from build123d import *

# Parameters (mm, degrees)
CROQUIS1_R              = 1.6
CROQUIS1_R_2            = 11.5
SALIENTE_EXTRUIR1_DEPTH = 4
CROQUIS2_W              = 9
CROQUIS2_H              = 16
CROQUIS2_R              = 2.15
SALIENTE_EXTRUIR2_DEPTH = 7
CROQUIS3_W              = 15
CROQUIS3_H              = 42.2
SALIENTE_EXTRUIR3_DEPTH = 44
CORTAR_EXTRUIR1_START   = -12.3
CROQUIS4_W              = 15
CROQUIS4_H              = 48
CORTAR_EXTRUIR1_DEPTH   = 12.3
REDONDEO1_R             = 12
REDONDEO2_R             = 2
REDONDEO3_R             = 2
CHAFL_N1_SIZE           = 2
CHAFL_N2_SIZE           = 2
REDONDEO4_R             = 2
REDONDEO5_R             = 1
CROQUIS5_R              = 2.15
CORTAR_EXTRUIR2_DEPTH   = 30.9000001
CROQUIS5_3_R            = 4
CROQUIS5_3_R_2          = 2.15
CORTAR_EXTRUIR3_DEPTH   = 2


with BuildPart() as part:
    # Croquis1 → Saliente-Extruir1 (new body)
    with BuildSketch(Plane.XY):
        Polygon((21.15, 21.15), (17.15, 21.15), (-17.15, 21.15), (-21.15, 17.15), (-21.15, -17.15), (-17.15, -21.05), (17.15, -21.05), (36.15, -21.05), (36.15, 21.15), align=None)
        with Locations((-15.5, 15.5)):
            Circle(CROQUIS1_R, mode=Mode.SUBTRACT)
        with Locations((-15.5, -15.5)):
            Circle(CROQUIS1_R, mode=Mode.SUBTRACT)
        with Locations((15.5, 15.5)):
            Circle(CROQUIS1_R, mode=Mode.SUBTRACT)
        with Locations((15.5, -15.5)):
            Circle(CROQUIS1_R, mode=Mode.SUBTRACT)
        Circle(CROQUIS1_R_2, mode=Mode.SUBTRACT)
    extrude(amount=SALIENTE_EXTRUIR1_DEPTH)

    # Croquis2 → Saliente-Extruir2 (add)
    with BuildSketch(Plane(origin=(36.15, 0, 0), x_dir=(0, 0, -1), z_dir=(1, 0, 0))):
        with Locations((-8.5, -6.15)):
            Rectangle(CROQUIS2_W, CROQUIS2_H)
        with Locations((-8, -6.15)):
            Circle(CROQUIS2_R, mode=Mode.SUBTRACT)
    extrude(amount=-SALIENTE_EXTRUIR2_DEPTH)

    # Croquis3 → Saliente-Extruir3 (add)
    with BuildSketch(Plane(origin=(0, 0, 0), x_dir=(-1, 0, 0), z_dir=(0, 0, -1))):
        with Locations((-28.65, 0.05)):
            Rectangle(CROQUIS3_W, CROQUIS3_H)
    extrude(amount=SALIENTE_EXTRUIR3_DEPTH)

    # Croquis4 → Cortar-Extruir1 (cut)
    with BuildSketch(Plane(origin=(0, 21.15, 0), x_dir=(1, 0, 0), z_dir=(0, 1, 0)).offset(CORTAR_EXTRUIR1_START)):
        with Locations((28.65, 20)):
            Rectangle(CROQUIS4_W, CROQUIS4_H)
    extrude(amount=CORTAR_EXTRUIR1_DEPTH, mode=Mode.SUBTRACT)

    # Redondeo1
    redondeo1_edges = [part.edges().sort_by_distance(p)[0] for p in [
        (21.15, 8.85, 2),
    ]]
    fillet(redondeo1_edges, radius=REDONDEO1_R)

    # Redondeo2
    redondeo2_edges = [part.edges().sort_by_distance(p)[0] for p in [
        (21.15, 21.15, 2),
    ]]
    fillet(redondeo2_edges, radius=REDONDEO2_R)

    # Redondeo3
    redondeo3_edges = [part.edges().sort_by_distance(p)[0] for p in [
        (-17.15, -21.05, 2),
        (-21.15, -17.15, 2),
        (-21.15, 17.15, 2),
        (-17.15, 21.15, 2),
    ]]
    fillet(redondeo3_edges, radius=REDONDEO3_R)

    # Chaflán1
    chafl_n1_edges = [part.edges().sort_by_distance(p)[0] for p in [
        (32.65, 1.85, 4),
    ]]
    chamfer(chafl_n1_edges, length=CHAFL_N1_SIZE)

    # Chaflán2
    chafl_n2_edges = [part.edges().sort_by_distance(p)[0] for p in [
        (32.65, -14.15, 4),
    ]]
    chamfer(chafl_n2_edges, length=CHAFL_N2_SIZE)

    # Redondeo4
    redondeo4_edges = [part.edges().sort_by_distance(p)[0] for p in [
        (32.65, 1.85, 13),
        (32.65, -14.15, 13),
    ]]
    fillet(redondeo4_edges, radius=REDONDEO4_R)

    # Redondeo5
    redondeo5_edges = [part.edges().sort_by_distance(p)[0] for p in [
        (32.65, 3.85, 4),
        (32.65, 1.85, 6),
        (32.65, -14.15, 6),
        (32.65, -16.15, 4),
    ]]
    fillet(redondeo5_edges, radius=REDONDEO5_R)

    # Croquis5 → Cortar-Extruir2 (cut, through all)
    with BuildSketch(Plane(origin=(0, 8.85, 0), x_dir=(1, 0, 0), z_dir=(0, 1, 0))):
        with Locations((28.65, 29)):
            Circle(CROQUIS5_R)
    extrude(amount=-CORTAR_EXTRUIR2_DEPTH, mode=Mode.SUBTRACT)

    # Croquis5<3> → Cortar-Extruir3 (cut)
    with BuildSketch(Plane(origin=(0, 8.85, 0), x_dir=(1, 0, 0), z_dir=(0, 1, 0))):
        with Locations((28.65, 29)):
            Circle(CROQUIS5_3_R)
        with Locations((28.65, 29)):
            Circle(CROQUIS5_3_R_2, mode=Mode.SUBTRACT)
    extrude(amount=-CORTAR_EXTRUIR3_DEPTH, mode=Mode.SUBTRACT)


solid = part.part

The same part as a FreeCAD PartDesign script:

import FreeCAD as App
import Part
import Sketcher
Q = App.Units.Quantity


def edges_at(feature, points):
    """Names of the edges that pass closest to the given points."""
    edges = feature.Shape.Edges
    near = lambda p: min(range(len(edges)), key=lambda i: edges[i].distToShape(Part.Vertex(*p))[0])
    return sorted({f"Edge{near(p) + 1}" for p in points})

doc = App.newDocument("Part")
params = doc.addObject("Spreadsheet::Sheet", "Params")
for row, (alias, value) in enumerate([
    ("sketch1_diameter", "23 mm"),
    ("sketch1_diameter2", "3.2 mm"),
    ("sketch1_width", "53.3 mm"),
    ("sketch1_height", "34.3 mm"),
    ("sketch1_height2", "42.2 mm"),
    ("pad1_length", "4 mm"),
    ("sketch2_diameter", "4.3 mm"),
    ("sketch2_width", "16 mm"),
    ("sketch2_height", "9 mm"),
    ("pad2_length", "7 mm"),
    ("sketch3_width", "15 mm"),
    ("sketch3_height", "42.2 mm"),
    ("pad3_length", "44 mm"),
    ("sketch4_width", "15 mm"),
    ("sketch4_height", "48 mm"),
    ("pocket1_length", "12.3 mm"),
    ("fillet_radius", "12 mm"),
    ("fillet2_radius", "2 mm"),
    ("fillet3_radius", "2 mm"),
    ("chamfer_size", "2 mm"),
    ("chamfer2_size", "2 mm"),
    ("fillet4_radius", "2 mm"),
    ("fillet5_radius", "1 mm"),
    ("sketch5_diameter", "4.3 mm"),
    ("sketch6_diameter", "8 mm"),
    ("sketch6_diameter2", "4.3 mm"),
    ("pocket3_length", "2 mm"),
], start=1):
    params.set(f"A{row}", alias)
    params.set(f"B{row}", "=" + value)
    params.setAlias(f"B{row}", alias)

body = doc.addObject("PartDesign::Body", "Body")

sketch1 = doc.addObject("Sketcher::SketchObject", "Sketch")
body.addObject(sketch1)
sketch1.AttachmentSupport = (doc.XY_Plane, [""])
sketch1.MapMode = "FlatFace"
sketch1.addGeometry(Part.LineSegment(App.Vector(-17.15, 21.15, 0), App.Vector(-21.15, 17.15, 0)), False)
sketch1.addGeometry(Part.LineSegment(App.Vector(-21.15, 17.15, 0), App.Vector(-21.15, -17.15, 0)), False)
sketch1.addGeometry(Part.LineSegment(App.Vector(-21.15, -17.15, 0), App.Vector(-17.15, -21.05, 0)), False)
sketch1.addGeometry(Part.LineSegment(App.Vector(-17.15, -21.05, 0), App.Vector(36.15, -21.05, 0)), False)
sketch1.addGeometry(Part.LineSegment(App.Vector(36.15, -21.05, 0), App.Vector(36.15, 21.15, 0)), False)
sketch1.addGeometry(Part.LineSegment(App.Vector(36.15, 21.15, 0), App.Vector(-17.15, 21.15, 0)), False)
sketch1.addGeometry(Part.Circle(App.Vector(-15.5, -15.5, 0), App.Vector(0, 0, 1), 1.6), False)
sketch1.addGeometry(Part.Circle(App.Vector(15.5, -15.5, 0), App.Vector(0, 0, 1), 1.6), False)
sketch1.addGeometry(Part.Circle(App.Vector(-15.5, 15.5, 0), App.Vector(0, 0, 1), 1.6), False)
sketch1.addGeometry(Part.Circle(App.Vector(0, 0, 0), App.Vector(0, 0, 1), 11.5), False)
sketch1.addGeometry(Part.Circle(App.Vector(15.5, 15.5, 0), App.Vector(0, 0, 1), 1.6), False)
sketch1.addConstraint(Sketcher.Constraint("Coincident", 0, 2, 1, 1))
sketch1.addConstraint(Sketcher.Constraint("Coincident", 1, 2, 2, 1))
sketch1.addConstraint(Sketcher.Constraint("Coincident", 2, 2, 3, 1))
sketch1.addConstraint(Sketcher.Constraint("Coincident", 3, 2, 4, 1))
sketch1.addConstraint(Sketcher.Constraint("Coincident", 4, 2, 5, 1))
sketch1.addConstraint(Sketcher.Constraint("Coincident", 5, 2, 0, 1))
sketch1.addConstraint(Sketcher.Constraint("Vertical", 1))
sketch1.addConstraint(Sketcher.Constraint("Horizontal", 3))
sketch1.addConstraint(Sketcher.Constraint("Vertical", 4))
sketch1.addConstraint(Sketcher.Constraint("Horizontal", 5))
sketch1.addConstraint(Sketcher.Constraint("Coincident", 9, 3, -1, 1))
sketch1.addConstraint(Sketcher.Constraint("Equal", 6, 7))
sketch1.addConstraint(Sketcher.Constraint("Equal", 7, 8))
sketch1.addConstraint(Sketcher.Constraint("Equal", 8, 10))
sketch1.addConstraint(Sketcher.Constraint("Symmetric", 7, 3, 8, 3, -1, 1))
sketch1.addConstraint(Sketcher.Constraint("Symmetric", 6, 3, 10, 3, -1, 1))
sketch1.addConstraint(Sketcher.Constraint("Symmetric", 6, 3, 7, 3, -2))
sketch1.addConstraint(Sketcher.Constraint("Vertical", 2, 2, 5, 2))
sketch1.addConstraint(Sketcher.Constraint("Diameter", 9, 23.0))
sketch1.addConstraint(Sketcher.Constraint("Diameter", 6, 3.2))
sketch1.addConstraint(Sketcher.Constraint("Angle", 0, Q("-135 deg")))
sketch1.addConstraint(Sketcher.Constraint("DistanceX", 3, 1, 3, 2, 53.3))
sketch1.addConstraint(Sketcher.Constraint("DistanceY", 1, 2, 1, 1, 34.3))
sketch1.addConstraint(Sketcher.Constraint("DistanceY", 4, 1, 4, 2, 42.2))
sketch1.addConstraint(Sketcher.Constraint("DistanceX", 6, 3, 7, 3, 31.0))
sketch1.addConstraint(Sketcher.Constraint("DistanceY", 6, 3, 8, 3, 31.0))
sketch1.addConstraint(Sketcher.Constraint("DistanceX", 1, 2, 2, 2, 4.0))
sketch1.addConstraint(Sketcher.Constraint("DistanceX", 0, 2, -1, 1, 21.15))
sketch1.addConstraint(Sketcher.Constraint("DistanceY", -1, 1, 0, 2, 17.15))
sketch1.setExpression("Constraints[18]", "Params.sketch1_diameter")
sketch1.setExpression("Constraints[19]", "Params.sketch1_diameter2")
sketch1.setExpression("Constraints[21]", "Params.sketch1_width")
sketch1.setExpression("Constraints[22]", "Params.sketch1_height")
sketch1.setExpression("Constraints[23]", "Params.sketch1_height2")
pad1 = doc.addObject("PartDesign::Pad", "Pad")
body.addObject(pad1)
pad1.Profile = sketch1
pad1.setExpression("Length", "Params.pad1_length")

sketch2 = doc.addObject("Sketcher::SketchObject", "Sketch001")
body.addObject(sketch2)
sketch2.AttachmentSupport = (doc.YZ_Plane, [""])
sketch2.MapMode = "FlatFace"
sketch2.AttachmentOffset = App.Placement(App.Vector(0, 0, 36.15), App.Rotation())
sketch2.addGeometry(Part.LineSegment(App.Vector(1.85, 13, 0), App.Vector(-14.15, 13, 0)), False)
sketch2.addGeometry(Part.LineSegment(App.Vector(-14.15, 13, 0), App.Vector(-14.15, 4, 0)), False)
sketch2.addGeometry(Part.LineSegment(App.Vector(-14.15, 4, 0), App.Vector(1.85, 4, 0)), False)
sketch2.addGeometry(Part.LineSegment(App.Vector(1.85, 4, 0), App.Vector(1.85, 13, 0)), False)
sketch2.addGeometry(Part.Circle(App.Vector(-6.15, 8, 0), App.Vector(0, 0, 1), 2.15), False)
sketch2.addConstraint(Sketcher.Constraint("Coincident", 0, 2, 1, 1))
sketch2.addConstraint(Sketcher.Constraint("Coincident", 1, 2, 2, 1))
sketch2.addConstraint(Sketcher.Constraint("Coincident", 2, 2, 3, 1))
sketch2.addConstraint(Sketcher.Constraint("Coincident", 3, 2, 0, 1))
sketch2.addConstraint(Sketcher.Constraint("Horizontal", 0))
sketch2.addConstraint(Sketcher.Constraint("Vertical", 1))
sketch2.addConstraint(Sketcher.Constraint("Horizontal", 2))
sketch2.addConstraint(Sketcher.Constraint("Vertical", 3))
sketch2.addConstraint(Sketcher.Constraint("Diameter", 4, 4.3))
sketch2.addConstraint(Sketcher.Constraint("DistanceX", 0, 2, 0, 1, 16.0))
sketch2.addConstraint(Sketcher.Constraint("DistanceY", 1, 2, 1, 1, 9.0))
sketch2.addConstraint(Sketcher.Constraint("DistanceY", -1, 1, 4, 3, 8.0))
sketch2.addConstraint(Sketcher.Constraint("DistanceY", -1, 1, 0, 2, 13.0))
sketch2.addConstraint(Sketcher.Constraint("DistanceX", 0, 2, 4, 3, 8.0))
sketch2.addConstraint(Sketcher.Constraint("DistanceX", 4, 3, -1, 1, 6.15))
sketch2.setExpression("Constraints[8]", "Params.sketch2_diameter")
sketch2.setExpression("Constraints[9]", "Params.sketch2_width")
sketch2.setExpression("Constraints[10]", "Params.sketch2_height")
pad2 = doc.addObject("PartDesign::Pad", "Pad001")
body.addObject(pad2)
pad2.Profile = sketch2
pad2.setExpression("Length", "Params.pad2_length")
pad2.Reversed = True

sketch3 = doc.addObject("Sketcher::SketchObject", "Sketch002")
body.addObject(sketch3)
sketch3.AttachmentSupport = (doc.XY_Plane, [""])
sketch3.MapMode = "FlatFace"
sketch3.addGeometry(Part.LineSegment(App.Vector(36.15, 21.15, 0), App.Vector(36.15, -21.05, 0)), False)
sketch3.addGeometry(Part.LineSegment(App.Vector(36.15, -21.05, 0), App.Vector(21.15, -21.05, 0)), False)
sketch3.addGeometry(Part.LineSegment(App.Vector(21.15, -21.05, 0), App.Vector(21.15, 21.15, 0)), False)
sketch3.addGeometry(Part.LineSegment(App.Vector(21.15, 21.15, 0), App.Vector(36.15, 21.15, 0)), False)
sketch3.addConstraint(Sketcher.Constraint("Coincident", 0, 2, 1, 1))
sketch3.addConstraint(Sketcher.Constraint("Coincident", 1, 2, 2, 1))
sketch3.addConstraint(Sketcher.Constraint("Coincident", 2, 2, 3, 1))
sketch3.addConstraint(Sketcher.Constraint("Coincident", 3, 2, 0, 1))
sketch3.addConstraint(Sketcher.Constraint("Vertical", 0))
sketch3.addConstraint(Sketcher.Constraint("Horizontal", 1))
sketch3.addConstraint(Sketcher.Constraint("Vertical", 2))
sketch3.addConstraint(Sketcher.Constraint("Horizontal", 3))
sketch3.addConstraint(Sketcher.Constraint("DistanceX", 1, 2, 1, 1, 15.0))
sketch3.addConstraint(Sketcher.Constraint("DistanceY", 0, 2, 0, 1, 42.2))
sketch3.addConstraint(Sketcher.Constraint("DistanceX", -1, 1, 0, 2, 36.15))
sketch3.addConstraint(Sketcher.Constraint("DistanceY", 0, 2, -1, 1, 21.05))
sketch3.setExpression("Constraints[8]", "Params.sketch3_width")
sketch3.setExpression("Constraints[9]", "Params.sketch3_height")
pad3 = doc.addObject("PartDesign::Pad", "Pad002")
body.addObject(pad3)
pad3.Profile = sketch3
pad3.setExpression("Length", "Params.pad3_length")
pad3.Reversed = True

sketch4 = doc.addObject("Sketcher::SketchObject", "Sketch003")
body.addObject(sketch4)
sketch4.AttachmentSupport = (doc.XZ_Plane, [""])
sketch4.MapMode = "FlatFace"
sketch4.AttachmentOffset = App.Placement(App.Vector(0, 0, -8.85), App.Rotation())
sketch4.addGeometry(Part.LineSegment(App.Vector(21.15, -44, 0), App.Vector(21.15, 4, 0)), False)
sketch4.addGeometry(Part.LineSegment(App.Vector(21.15, 4, 0), App.Vector(36.15, 4, 0)), False)
sketch4.addGeometry(Part.LineSegment(App.Vector(36.15, 4, 0), App.Vector(36.15, -44, 0)), False)
sketch4.addGeometry(Part.LineSegment(App.Vector(36.15, -44, 0), App.Vector(21.15, -44, 0)), False)
sketch4.addConstraint(Sketcher.Constraint("Coincident", 0, 2, 1, 1))
sketch4.addConstraint(Sketcher.Constraint("Coincident", 1, 2, 2, 1))
sketch4.addConstraint(Sketcher.Constraint("Coincident", 2, 2, 3, 1))
sketch4.addConstraint(Sketcher.Constraint("Coincident", 3, 2, 0, 1))
sketch4.addConstraint(Sketcher.Constraint("Vertical", 0))
sketch4.addConstraint(Sketcher.Constraint("Horizontal", 1))
sketch4.addConstraint(Sketcher.Constraint("Vertical", 2))
sketch4.addConstraint(Sketcher.Constraint("Horizontal", 3))
sketch4.addConstraint(Sketcher.Constraint("DistanceX", 1, 1, 1, 2, 15.0))
sketch4.addConstraint(Sketcher.Constraint("DistanceY", 0, 1, 0, 2, 48.0))
sketch4.addConstraint(Sketcher.Constraint("DistanceY", -1, 1, 0, 2, 4.0))
sketch4.addConstraint(Sketcher.Constraint("DistanceX", -1, 1, 0, 2, 21.15))
sketch4.setExpression("Constraints[8]", "Params.sketch4_width")
sketch4.setExpression("Constraints[9]", "Params.sketch4_height")
pocket1 = doc.addObject("PartDesign::Pocket", "Pocket")
body.addObject(pocket1)
pocket1.Profile = sketch4
pocket1.setExpression("Length", "Params.pocket1_length")
doc.recompute()

fillet = doc.addObject("PartDesign::Fillet", "Fillet")
body.addObject(fillet)
fillet.Base = (pocket1, edges_at(pocket1, [(21.15, 8.85, 2)]))
fillet.setExpression("Radius", "Params.fillet_radius")
doc.recompute()

fillet2 = doc.addObject("PartDesign::Fillet", "Fillet001")
body.addObject(fillet2)
fillet2.Base = (fillet, edges_at(fillet, [(21.15, 21.15, 2)]))
fillet2.setExpression("Radius", "Params.fillet2_radius")
doc.recompute()

fillet3 = doc.addObject("PartDesign::Fillet", "Fillet002")
body.addObject(fillet3)
fillet3.Base = (fillet2, edges_at(fillet2, [
    (-17.15, -21.05, 2),
    (-21.15, -17.15, 2),
    (-21.15, 17.15, 2),
    (-17.15, 21.15, 2),
]))
fillet3.setExpression("Radius", "Params.fillet3_radius")
doc.recompute()

chamfer = doc.addObject("PartDesign::Chamfer", "Chamfer")
body.addObject(chamfer)
chamfer.Base = (fillet3, edges_at(fillet3, [(32.65, 1.85, 4)]))
chamfer.setExpression("Size", "Params.chamfer_size")
doc.recompute()

chamfer2 = doc.addObject("PartDesign::Chamfer", "Chamfer001")
body.addObject(chamfer2)
chamfer2.Base = (chamfer, edges_at(chamfer, [(32.65, -14.15, 4)]))
chamfer2.setExpression("Size", "Params.chamfer2_size")
doc.recompute()

fillet4 = doc.addObject("PartDesign::Fillet", "Fillet003")
body.addObject(fillet4)
fillet4.Base = (chamfer2, edges_at(chamfer2, [(32.65, 1.85, 13), (32.65, -14.15, 13)]))
fillet4.setExpression("Radius", "Params.fillet4_radius")
doc.recompute()

fillet5 = doc.addObject("PartDesign::Fillet", "Fillet004")
body.addObject(fillet5)
fillet5.Base = (fillet4, edges_at(fillet4, [
    (32.65, 3.85, 4),
    (32.65, 1.85, 6),
    (32.65, -14.15, 6),
    (32.65, -16.15, 4),
]))
fillet5.setExpression("Radius", "Params.fillet5_radius")

sketch5 = doc.addObject("Sketcher::SketchObject", "Sketch004")
body.addObject(sketch5)
sketch5.AttachmentSupport = (doc.XZ_Plane, [""])
sketch5.MapMode = "FlatFace"
sketch5.AttachmentOffset = App.Placement(App.Vector(0, 0, -8.85), App.Rotation())
sketch5.addGeometry(Part.Circle(App.Vector(28.65, -29, 0), App.Vector(0, 0, 1), 2.15), False)
sketch5.addConstraint(Sketcher.Constraint("Diameter", 0, 4.3))
sketch5.addConstraint(Sketcher.Constraint("DistanceY", 0, 3, -1, 1, 29.0))
sketch5.addConstraint(Sketcher.Constraint("DistanceX", -1, 1, 0, 3, 28.65))
sketch5.setExpression("Constraints[0]", "Params.sketch5_diameter")
pocket2 = doc.addObject("PartDesign::Pocket", "Pocket001")
body.addObject(pocket2)
pocket2.Profile = sketch5
pocket2.Type = "ThroughAll"
pocket2.Reversed = True

sketch6 = doc.addObject("Sketcher::SketchObject", "Sketch005")
body.addObject(sketch6)
sketch6.AttachmentSupport = (doc.XZ_Plane, [""])
sketch6.MapMode = "FlatFace"
sketch6.AttachmentOffset = App.Placement(App.Vector(0, 0, -8.85), App.Rotation())
sketch6.addGeometry(Part.Circle(App.Vector(28.65, -29, 0), App.Vector(0, 0, 1), 4), False)
sketch6.addGeometry(Part.Circle(App.Vector(28.65, -29, 0), App.Vector(0, 0, 1), 2.15), False)
sketch6.addConstraint(Sketcher.Constraint("Coincident", 1, 3, 0, 3))
sketch6.addConstraint(Sketcher.Constraint("Diameter", 0, 8.0))
sketch6.addConstraint(Sketcher.Constraint("Diameter", 1, 4.3))
sketch6.addConstraint(Sketcher.Constraint("DistanceY", 0, 3, -1, 1, 29.0))
sketch6.addConstraint(Sketcher.Constraint("DistanceX", -1, 1, 0, 3, 28.65))
sketch6.setExpression("Constraints[1]", "Params.sketch6_diameter")
sketch6.setExpression("Constraints[2]", "Params.sketch6_diameter2")
pocket3 = doc.addObject("PartDesign::Pocket", "Pocket002")
body.addObject(pocket3)
pocket3.Profile = sketch6
pocket3.setExpression("Length", "Params.pocket3_length")
pocket3.Reversed = True

doc.recompute()
